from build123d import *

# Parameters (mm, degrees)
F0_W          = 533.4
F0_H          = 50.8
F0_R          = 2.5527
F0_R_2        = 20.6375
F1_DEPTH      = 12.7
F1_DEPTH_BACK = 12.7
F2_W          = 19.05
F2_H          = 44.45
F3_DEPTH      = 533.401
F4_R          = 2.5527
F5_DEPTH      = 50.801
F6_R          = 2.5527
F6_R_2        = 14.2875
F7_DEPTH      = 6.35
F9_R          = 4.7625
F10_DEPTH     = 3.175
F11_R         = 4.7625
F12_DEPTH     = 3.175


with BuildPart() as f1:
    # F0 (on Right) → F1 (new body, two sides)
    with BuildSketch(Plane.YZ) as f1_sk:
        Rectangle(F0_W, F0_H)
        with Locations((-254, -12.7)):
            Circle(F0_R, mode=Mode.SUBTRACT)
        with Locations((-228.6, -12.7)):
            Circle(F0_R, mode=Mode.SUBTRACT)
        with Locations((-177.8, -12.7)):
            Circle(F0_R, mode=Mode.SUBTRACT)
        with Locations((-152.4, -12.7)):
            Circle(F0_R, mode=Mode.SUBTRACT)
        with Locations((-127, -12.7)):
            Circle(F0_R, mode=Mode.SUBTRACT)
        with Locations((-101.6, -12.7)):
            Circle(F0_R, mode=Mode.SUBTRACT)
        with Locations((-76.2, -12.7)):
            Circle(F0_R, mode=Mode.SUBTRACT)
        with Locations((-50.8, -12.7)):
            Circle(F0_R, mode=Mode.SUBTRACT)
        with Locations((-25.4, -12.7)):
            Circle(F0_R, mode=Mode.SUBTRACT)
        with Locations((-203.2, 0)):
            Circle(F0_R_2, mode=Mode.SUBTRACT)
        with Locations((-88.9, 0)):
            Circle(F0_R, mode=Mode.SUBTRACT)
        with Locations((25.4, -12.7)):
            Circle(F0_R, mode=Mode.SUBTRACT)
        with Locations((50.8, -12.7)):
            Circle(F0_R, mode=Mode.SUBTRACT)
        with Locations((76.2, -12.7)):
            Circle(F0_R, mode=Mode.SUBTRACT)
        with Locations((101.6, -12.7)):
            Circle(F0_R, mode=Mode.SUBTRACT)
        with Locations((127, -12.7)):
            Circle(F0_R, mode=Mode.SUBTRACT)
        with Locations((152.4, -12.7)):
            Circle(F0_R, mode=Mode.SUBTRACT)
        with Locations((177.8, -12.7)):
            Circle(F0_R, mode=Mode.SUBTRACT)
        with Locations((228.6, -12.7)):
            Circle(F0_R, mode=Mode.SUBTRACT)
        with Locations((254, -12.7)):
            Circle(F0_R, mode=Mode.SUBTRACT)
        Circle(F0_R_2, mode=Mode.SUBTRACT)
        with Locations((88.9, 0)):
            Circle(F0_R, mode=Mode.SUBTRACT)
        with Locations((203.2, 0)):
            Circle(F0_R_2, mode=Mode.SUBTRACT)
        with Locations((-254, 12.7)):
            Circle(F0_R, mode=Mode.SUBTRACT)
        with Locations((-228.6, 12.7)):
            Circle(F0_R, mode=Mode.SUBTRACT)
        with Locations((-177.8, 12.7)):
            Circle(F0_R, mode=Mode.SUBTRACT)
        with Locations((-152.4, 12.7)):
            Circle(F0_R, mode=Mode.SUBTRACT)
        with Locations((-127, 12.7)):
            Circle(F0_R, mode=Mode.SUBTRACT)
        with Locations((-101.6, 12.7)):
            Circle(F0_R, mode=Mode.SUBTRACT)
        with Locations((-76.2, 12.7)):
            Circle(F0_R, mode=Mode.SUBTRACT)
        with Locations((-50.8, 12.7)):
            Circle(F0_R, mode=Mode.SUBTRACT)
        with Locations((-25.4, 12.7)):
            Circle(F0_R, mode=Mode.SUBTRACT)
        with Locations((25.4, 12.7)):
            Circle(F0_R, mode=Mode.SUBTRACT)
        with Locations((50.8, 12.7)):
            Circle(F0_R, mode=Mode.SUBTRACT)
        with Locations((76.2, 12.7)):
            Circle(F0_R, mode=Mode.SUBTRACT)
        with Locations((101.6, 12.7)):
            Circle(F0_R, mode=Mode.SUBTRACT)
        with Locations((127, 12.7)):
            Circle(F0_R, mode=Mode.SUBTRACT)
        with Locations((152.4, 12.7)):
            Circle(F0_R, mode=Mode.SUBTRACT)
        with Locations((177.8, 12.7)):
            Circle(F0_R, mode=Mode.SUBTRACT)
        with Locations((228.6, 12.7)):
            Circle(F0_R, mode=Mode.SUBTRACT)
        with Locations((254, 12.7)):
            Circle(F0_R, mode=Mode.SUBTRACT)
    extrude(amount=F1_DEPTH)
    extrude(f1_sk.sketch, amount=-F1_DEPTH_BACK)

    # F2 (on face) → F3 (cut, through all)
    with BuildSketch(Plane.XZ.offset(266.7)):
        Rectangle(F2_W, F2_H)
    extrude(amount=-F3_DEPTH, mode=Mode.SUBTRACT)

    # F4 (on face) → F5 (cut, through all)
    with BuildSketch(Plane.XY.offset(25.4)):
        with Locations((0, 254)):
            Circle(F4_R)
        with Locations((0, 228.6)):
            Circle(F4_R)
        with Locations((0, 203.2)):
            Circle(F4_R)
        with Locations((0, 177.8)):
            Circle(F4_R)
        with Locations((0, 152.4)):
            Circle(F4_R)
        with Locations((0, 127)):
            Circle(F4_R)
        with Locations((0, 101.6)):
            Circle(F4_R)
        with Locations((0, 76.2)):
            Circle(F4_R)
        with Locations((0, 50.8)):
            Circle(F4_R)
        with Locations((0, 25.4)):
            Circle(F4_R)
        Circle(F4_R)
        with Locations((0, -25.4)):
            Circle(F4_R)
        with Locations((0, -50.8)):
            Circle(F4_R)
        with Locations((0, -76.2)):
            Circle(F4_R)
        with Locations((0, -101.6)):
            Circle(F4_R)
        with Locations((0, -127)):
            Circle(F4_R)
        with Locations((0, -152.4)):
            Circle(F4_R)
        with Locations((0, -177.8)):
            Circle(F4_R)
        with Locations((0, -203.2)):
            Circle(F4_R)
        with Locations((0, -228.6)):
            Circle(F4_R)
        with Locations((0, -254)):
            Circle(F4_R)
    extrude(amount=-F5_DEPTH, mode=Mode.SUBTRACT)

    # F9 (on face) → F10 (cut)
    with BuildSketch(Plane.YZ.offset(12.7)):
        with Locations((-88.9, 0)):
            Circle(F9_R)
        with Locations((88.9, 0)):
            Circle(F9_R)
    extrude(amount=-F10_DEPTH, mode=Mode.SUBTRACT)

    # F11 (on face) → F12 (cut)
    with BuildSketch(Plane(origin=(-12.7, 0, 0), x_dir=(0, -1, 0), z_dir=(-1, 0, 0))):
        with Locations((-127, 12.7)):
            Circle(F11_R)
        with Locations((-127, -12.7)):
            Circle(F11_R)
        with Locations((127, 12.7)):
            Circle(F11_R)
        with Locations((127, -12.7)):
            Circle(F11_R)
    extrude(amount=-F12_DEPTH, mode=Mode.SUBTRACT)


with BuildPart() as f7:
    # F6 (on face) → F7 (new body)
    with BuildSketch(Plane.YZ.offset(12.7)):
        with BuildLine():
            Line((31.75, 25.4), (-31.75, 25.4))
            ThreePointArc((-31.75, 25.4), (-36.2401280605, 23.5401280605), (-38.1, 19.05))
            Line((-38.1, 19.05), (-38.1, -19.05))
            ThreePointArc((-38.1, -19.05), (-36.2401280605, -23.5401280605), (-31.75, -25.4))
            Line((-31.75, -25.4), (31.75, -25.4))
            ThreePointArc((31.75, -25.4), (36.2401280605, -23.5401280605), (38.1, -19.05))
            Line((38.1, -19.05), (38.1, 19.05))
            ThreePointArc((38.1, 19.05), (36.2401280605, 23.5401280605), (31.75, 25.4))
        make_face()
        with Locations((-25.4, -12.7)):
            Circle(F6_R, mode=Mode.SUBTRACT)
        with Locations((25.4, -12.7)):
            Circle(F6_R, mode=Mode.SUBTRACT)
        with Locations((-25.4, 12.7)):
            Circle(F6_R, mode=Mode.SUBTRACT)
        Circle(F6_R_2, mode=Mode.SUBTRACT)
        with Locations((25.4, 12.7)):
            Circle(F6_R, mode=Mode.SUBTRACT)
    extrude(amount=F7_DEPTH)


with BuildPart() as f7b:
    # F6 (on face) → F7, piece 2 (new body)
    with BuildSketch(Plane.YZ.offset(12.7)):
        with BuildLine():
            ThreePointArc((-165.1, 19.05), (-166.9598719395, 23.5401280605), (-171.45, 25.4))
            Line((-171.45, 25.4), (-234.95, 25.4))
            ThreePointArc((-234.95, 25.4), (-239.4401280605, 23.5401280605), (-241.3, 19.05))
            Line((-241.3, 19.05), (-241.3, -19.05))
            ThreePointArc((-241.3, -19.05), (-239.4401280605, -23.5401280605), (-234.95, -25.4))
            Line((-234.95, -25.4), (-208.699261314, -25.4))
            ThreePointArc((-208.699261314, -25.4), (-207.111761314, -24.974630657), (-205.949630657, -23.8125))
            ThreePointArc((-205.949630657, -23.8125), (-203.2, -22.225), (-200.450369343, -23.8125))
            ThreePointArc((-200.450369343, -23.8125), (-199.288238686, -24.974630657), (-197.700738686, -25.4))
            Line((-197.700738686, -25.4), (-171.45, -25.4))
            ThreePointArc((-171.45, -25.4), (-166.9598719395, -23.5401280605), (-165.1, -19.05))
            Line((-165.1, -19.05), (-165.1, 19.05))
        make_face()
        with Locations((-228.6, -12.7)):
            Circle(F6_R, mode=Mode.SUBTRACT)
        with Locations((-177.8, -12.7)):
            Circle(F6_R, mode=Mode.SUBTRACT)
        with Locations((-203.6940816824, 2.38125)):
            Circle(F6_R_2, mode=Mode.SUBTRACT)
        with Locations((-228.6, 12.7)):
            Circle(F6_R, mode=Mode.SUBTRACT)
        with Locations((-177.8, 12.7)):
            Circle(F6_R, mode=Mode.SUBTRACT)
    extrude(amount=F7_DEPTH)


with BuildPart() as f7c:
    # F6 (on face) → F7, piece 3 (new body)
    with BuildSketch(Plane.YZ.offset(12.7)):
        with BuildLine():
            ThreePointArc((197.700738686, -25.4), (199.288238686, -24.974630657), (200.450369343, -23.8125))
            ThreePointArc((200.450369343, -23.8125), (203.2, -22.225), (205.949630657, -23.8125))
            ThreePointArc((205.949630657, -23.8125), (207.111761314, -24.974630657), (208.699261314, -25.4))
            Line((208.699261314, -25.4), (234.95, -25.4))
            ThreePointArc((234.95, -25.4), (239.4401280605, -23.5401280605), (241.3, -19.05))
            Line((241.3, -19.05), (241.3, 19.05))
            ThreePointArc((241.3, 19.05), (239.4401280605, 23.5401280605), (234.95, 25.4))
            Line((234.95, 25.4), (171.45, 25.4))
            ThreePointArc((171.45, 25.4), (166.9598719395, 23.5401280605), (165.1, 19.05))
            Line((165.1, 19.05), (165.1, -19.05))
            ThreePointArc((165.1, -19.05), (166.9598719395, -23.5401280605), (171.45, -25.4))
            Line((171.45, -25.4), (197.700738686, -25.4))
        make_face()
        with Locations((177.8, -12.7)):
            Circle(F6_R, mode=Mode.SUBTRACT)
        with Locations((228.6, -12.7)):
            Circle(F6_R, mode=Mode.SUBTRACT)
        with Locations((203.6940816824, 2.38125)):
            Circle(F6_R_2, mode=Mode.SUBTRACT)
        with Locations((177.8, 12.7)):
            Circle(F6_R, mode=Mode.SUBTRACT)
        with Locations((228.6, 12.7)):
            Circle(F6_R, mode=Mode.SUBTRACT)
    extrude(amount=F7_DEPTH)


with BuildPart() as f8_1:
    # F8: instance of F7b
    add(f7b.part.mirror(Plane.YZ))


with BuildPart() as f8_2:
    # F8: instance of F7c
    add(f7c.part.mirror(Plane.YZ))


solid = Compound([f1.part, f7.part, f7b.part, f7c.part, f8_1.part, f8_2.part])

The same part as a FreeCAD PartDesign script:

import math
import FreeCAD as App
import Part
import Sketcher
from FreeCAD import Vector
Q = App.Units.Quantity

doc = App.newDocument("Part")
body = doc.addObject("PartDesign::Body", "Body")

sketch1 = doc.addObject("Sketcher::SketchObject", "Sketch")
body.addObject(sketch1)
sketch1.AttachmentSupport = (doc.YZ_Plane, [""])
sketch1.MapMode = "FlatFace"
sketch1.addGeometry([
    Part.LineSegment(Vector(-266.7, 25.4, 0), Vector(-266.7, -25.4, 0)),
    Part.LineSegment(Vector(-266.7, -25.4, 0), Vector(266.7, -25.4, 0)),
    Part.LineSegment(Vector(266.7, -25.4, 0), Vector(266.7, 25.4, 0)),
    Part.LineSegment(Vector(266.7, 25.4, 0), Vector(-266.7, 25.4, 0)),
    Part.Circle(Vector(-254, -12.7, 0), Vector(0, 0, 1), 2.5527),
    Part.Circle(Vector(-228.6, -12.7, 0), Vector(0, 0, 1), 2.5527),
    Part.Circle(Vector(-177.8, -12.7, 0), Vector(0, 0, 1), 2.5527),
    Part.Circle(Vector(-152.4, -12.7, 0), Vector(0, 0, 1), 2.5527),
    Part.Circle(Vector(-127, -12.7, 0), Vector(0, 0, 1), 2.5527),
    Part.Circle(Vector(-101.6, -12.7, 0), Vector(0, 0, 1), 2.5527),
    Part.Circle(Vector(-76.2, -12.7, 0), Vector(0, 0, 1), 2.5527),
    Part.Circle(Vector(-50.8, -12.7, 0), Vector(0, 0, 1), 2.5527),
    Part.Circle(Vector(-25.4, -12.7, 0), Vector(0, 0, 1), 2.5527),
    Part.Circle(Vector(25.4, -12.7, 0), Vector(0, 0, 1), 2.5527),
    Part.Circle(Vector(50.8, -12.7, 0), Vector(0, 0, 1), 2.5527),
    Part.Circle(Vector(76.2, -12.7, 0), Vector(0, 0, 1), 2.5527),
    Part.Circle(Vector(101.6, -12.7, 0), Vector(0, 0, 1), 2.5527),
    Part.Circle(Vector(127, -12.7, 0), Vector(0, 0, 1), 2.5527),
    Part.Circle(Vector(152.4, -12.7, 0), Vector(0, 0, 1), 2.5527),
    Part.Circle(Vector(177.8, -12.7, 0), Vector(0, 0, 1), 2.5527),
    Part.Circle(Vector(228.6, -12.7, 0), Vector(0, 0, 1), 2.5527),
    Part.Circle(Vector(254, -12.7, 0), Vector(0, 0, 1), 2.5527),
    Part.Circle(Vector(-203.2, 0, 0), Vector(0, 0, 1), 20.6375),
    Part.Circle(Vector(-88.9, 0, 0), Vector(0, 0, 1), 2.5527),
    Part.Circle(Vector(-254, 12.7, 0), Vector(0, 0, 1), 2.5527),
    Part.Circle(Vector(-228.6, 12.7, 0), Vector(0, 0, 1), 2.5527),
    Part.Circle(Vector(-177.8, 12.7, 0), Vector(0, 0, 1), 2.5527),
    Part.Circle(Vector(-152.4, 12.7, 0), Vector(0, 0, 1), 2.5527),
    Part.Circle(Vector(-127, 12.7, 0), Vector(0, 0, 1), 2.5527),
    Part.Circle(Vector(-101.6, 12.7, 0), Vector(0, 0, 1), 2.5527),
    Part.Circle(Vector(-76.2, 12.7, 0), Vector(0, 0, 1), 2.5527),
    Part.Circle(Vector(-50.8, 12.7, 0), Vector(0, 0, 1), 2.5527),
    Part.Circle(Vector(-25.4, 12.7, 0), Vector(0, 0, 1), 2.5527),
    Part.Circle(Vector(0, 0, 0), Vector(0, 0, 1), 20.6375),
    Part.Circle(Vector(88.9, 0, 0), Vector(0, 0, 1), 2.5527),
    Part.Circle(Vector(203.2, 0, 0), Vector(0, 0, 1), 20.6375),
    Part.Circle(Vector(25.4, 12.7, 0), Vector(0, 0, 1), 2.5527),
    Part.Circle(Vector(50.8, 12.7, 0), Vector(0, 0, 1), 2.5527),
    Part.Circle(Vector(76.2, 12.7, 0), Vector(0, 0, 1), 2.5527),
    Part.Circle(Vector(101.6, 12.7, 0), Vector(0, 0, 1), 2.5527),
    Part.Circle(Vector(127, 12.7, 0), Vector(0, 0, 1), 2.5527),
    Part.Circle(Vector(152.4, 12.7, 0), Vector(0, 0, 1), 2.5527),
    Part.Circle(Vector(177.8, 12.7, 0), Vector(0, 0, 1), 2.5527),
    Part.Circle(Vector(228.6, 12.7, 0), Vector(0, 0, 1), 2.5527),
    Part.Circle(Vector(254, 12.7, 0), Vector(0, 0, 1), 2.5527),
], False)
sketch1.addConstraint([
    Sketcher.Constraint("Coincident", 0, 2, 1, 1),
    Sketcher.Constraint("Coincident", 1, 2, 2, 1),
    Sketcher.Constraint("Coincident", 2, 2, 3, 1),
    Sketcher.Constraint("Coincident", 3, 2, 0, 1),
    Sketcher.Constraint("Vertical", 0),
    Sketcher.Constraint("Horizontal", 1),
    Sketcher.Constraint("Vertical", 2),
    Sketcher.Constraint("Horizontal", 3),
    Sketcher.Constraint("Coincident", 33, 3, -1, 1),
    Sketcher.Constraint("Equal", 4, 5),
    Sketcher.Constraint("Equal", 5, 6),
    Sketcher.Constraint("Equal", 6, 7),
    Sketcher.Constraint("Equal", 7, 8),
    Sketcher.Constraint("Equal", 8, 9),
    Sketcher.Constraint("Equal", 9, 10),
    Sketcher.Constraint("Equal", 10, 11),
    Sketcher.Constraint("Equal", 11, 12),
    Sketcher.Constraint("Equal", 12, 13),
    Sketcher.Constraint("Equal", 13, 14),
    Sketcher.Constraint("Equal", 14, 15),
    Sketcher.Constraint("Equal", 15, 16),
    Sketcher.Constraint("Equal", 16, 17),
    Sketcher.Constraint("Equal", 17, 18),
    Sketcher.Constraint("Equal", 18, 19),
    Sketcher.Constraint("Equal", 19, 20),
    Sketcher.Constraint("Equal", 20, 21),
    Sketcher.Constraint("Equal", 21, 23),
    Sketcher.Constraint("Equal", 23, 24),
    Sketcher.Constraint("Equal", 24, 25),
    Sketcher.Constraint("Equal", 25, 26),
    Sketcher.Constraint("Equal", 26, 27),
    Sketcher.Constraint("Equal", 27, 28),
    Sketcher.Constraint("Equal", 28, 29),
    Sketcher.Constraint("Equal", 29, 30),
    Sketcher.Constraint("Equal", 30, 31),
    Sketcher.Constraint("Equal", 31, 32),
    Sketcher.Constraint("Equal", 22, 33),
    Sketcher.Constraint("Equal", 32, 34),
    Sketcher.Constraint("Equal", 33, 35),
    Sketcher.Constraint("Equal", 34, 36),
    Sketcher.Constraint("Equal", 36, 37),
    Sketcher.Constraint("Equal", 37, 38),
    Sketcher.Constraint("Equal", 38, 39),
    Sketcher.Constraint("Equal", 39, 40),
    Sketcher.Constraint("Equal", 40, 41),
    Sketcher.Constraint("Equal", 41, 42),
    Sketcher.Constraint("Equal", 42, 43),
    Sketcher.Constraint("Equal", 43, 44),
    Sketcher.Constraint("Symmetric", 21, 3, 24, 3, -1, 1),
    Sketcher.Constraint("Symmetric", 20, 3, 25, 3, -1, 1),
    Sketcher.Constraint("Symmetric", 19, 3, 26, 3, -1, 1),
    Sketcher.Constraint("Symmetric", 18, 3, 27, 3, -1, 1),
    Sketcher.Constraint("Symmetric", 17, 3, 28, 3, -1, 1),
    Sketcher.Constraint("Symmetric", 16, 3, 29, 3, -1, 1),
    Sketcher.Constraint("Symmetric", 15, 3, 30, 3, -1, 1),
    Sketcher.Constraint("Symmetric", 14, 3, 31, 3, -1, 1),
    Sketcher.Constraint("Symmetric", 13, 3, 32, 3, -1, 1),
    Sketcher.Constraint("Symmetric", 23, 3, 34, 3, -1, 1),
    Sketcher.Constraint("Symmetric", 22, 3, 35, 3, -1, 1),
    Sketcher.Constraint("Symmetric", 12, 3, 36, 3, -1, 1),
    Sketcher.Constraint("Symmetric", 11, 3, 37, 3, -1, 1),
    Sketcher.Constraint("Symmetric", 10, 3, 38, 3, -1, 1),
    Sketcher.Constraint("Symmetric", 9, 3, 39, 3, -1, 1),
    Sketcher.Constraint("Symmetric", 8, 3, 40, 3, -1, 1),
    Sketcher.Constraint("Symmetric", 7, 3, 41, 3, -1, 1),
    Sketcher.Constraint("Symmetric", 6, 3, 42, 3, -1, 1),
    Sketcher.Constraint("Symmetric", 5, 3, 43, 3, -1, 1),
    Sketcher.Constraint("Symmetric", 4, 3, 44, 3, -1, 1),
    Sketcher.Constraint("Symmetric", 0, 2, 2, 2, -1, 1),
    Sketcher.Constraint("Symmetric", 12, 3, 13, 3, -2),
    Sketcher.Constraint("Symmetric", 11, 3, 14, 3, -2),
    Sketcher.Constraint("Symmetric", 10, 3, 15, 3, -2),
    Sketcher.Constraint("Symmetric", 9, 3, 16, 3, -2),
    Sketcher.Constraint("Symmetric", 8, 3, 17, 3, -2),
    Sketcher.Constraint("Symmetric", 7, 3, 18, 3, -2),
    Sketcher.Constraint("Symmetric", 6, 3, 19, 3, -2),
    Sketcher.Constraint("Symmetric", 5, 3, 20, 3, -2),
    Sketcher.Constraint("Symmetric", 4, 3, 21, 3, -2),
    Sketcher.Constraint("PointOnObject", 22, 3, -1),
    Sketcher.Constraint("PointOnObject", 23, 3, -1),
    Sketcher.Constraint("Horizontal", 4, 3, 5, 3),
    Sketcher.Constraint("Horizontal", 5, 3, 6, 3),
    Sketcher.Constraint("Horizontal", 6, 3, 7, 3),
    Sketcher.Constraint("Horizontal", 7, 3, 8, 3),
    Sketcher.Constraint("Horizontal", 8, 3, 9, 3),
    Sketcher.Constraint("Horizontal", 9, 3, 10, 3),
    Sketcher.Constraint("Horizontal", 10, 3, 11, 3),
    Sketcher.Constraint("Horizontal", 11, 3, 12, 3),
    Sketcher.Constraint("DistanceX", 1, 1, 1, 2, Q("21 in")),
    Sketcher.Constraint("DistanceY", 0, 2, 0, 1, Q("2 in")),
    Sketcher.Constraint("Diameter", 4, Q("0.201 in")),
    Sketcher.Constraint("Diameter", 22, Q("1.625 in")),
    Sketcher.Constraint("DistanceX", 4, 3, -1, 1, Q("10 in")),
    Sketcher.Constraint("DistanceX", 5, 3, -1, 1, Q("9 in")),
    Sketcher.Constraint("DistanceX", 6, 3, -1, 1, Q("7 in")),
    Sketcher.Constraint("DistanceX", 7, 3, -1, 1, Q("6 in")),
    Sketcher.Constraint("DistanceX", 8, 3, -1, 1, Q("5 in")),
    Sketcher.Constraint("DistanceX", 9, 3, -1, 1, Q("4 in")),
    Sketcher.Constraint("DistanceX", 10, 3, -1, 1, Q("3 in")),
    Sketcher.Constraint("DistanceX", 11, 3, -1, 1, Q("2 in")),
    Sketcher.Constraint("DistanceX", 12, 3, -1, 1, Q("1 in")),
    Sketcher.Constraint("DistanceX", 22, 3, -1, 1, Q("8 in")),
    Sketcher.Constraint("DistanceY", 4, 3, 24, 3, Q("1 in")),
    Sketcher.Constraint("DistanceX", 23, 3, -1, 1, Q("3.5 in")),
])
pad1 = doc.addObject("PartDesign::Pad", "Pad")
body.addObject(pad1)
pad1.Profile = sketch1
pad1.Type = "TwoLengths"
pad1.Length = Q("0.5 in")
pad1.Length2 = Q("0.5 in")

sketch2 = doc.addObject("Sketcher::SketchObject", "Sketch001")
body.addObject(sketch2)
sketch2.AttachmentSupport = (doc.XZ_Plane, [""])
sketch2.MapMode = "FlatFace"
sketch2.AttachmentOffset = App.Placement(Vector(0, 0, 10.5 * 25.4), App.Rotation())
sketch2.addGeometry([
    Part.LineSegment(Vector(-9.525, 22.225, 0), Vector(-9.525, -22.225, 0)),
    Part.LineSegment(Vector(-9.525, -22.225, 0), Vector(9.525, -22.225, 0)),
    Part.LineSegment(Vector(9.525, -22.225, 0), Vector(9.525, 22.225, 0)),
    Part.LineSegment(Vector(9.525, 22.225, 0), Vector(-9.525, 22.225, 0)),
], False)
sketch2.addConstraint([
    Sketcher.Constraint("Coincident", 0, 2, 1, 1),
    Sketcher.Constraint("Coincident", 1, 2, 2, 1),
    Sketcher.Constraint("Coincident", 2, 2, 3, 1),
    Sketcher.Constraint("Coincident", 3, 2, 0, 1),
    Sketcher.Constraint("Vertical", 0),
    Sketcher.Constraint("Horizontal", 1),
    Sketcher.Constraint("Vertical", 2),
    Sketcher.Constraint("Horizontal", 3),
    Sketcher.Constraint("Symmetric", 0, 2, 2, 2, -1, 1),
    Sketcher.Constraint("DistanceX", 1, 1, 1, 2, Q("0.75 in")),
    Sketcher.Constraint("DistanceY", 0, 2, 0, 1, Q("1.75 in")),
])
pocket1 = doc.addObject("PartDesign::Pocket", "Pocket")
body.addObject(pocket1)
pocket1.Profile = sketch2
pocket1.Type = "ThroughAll"

sketch3 = doc.addObject("Sketcher::SketchObject", "Sketch002")
body.addObject(sketch3)
sketch3.AttachmentSupport = (doc.XY_Plane, [""])
sketch3.MapMode = "FlatFace"
sketch3.AttachmentOffset = App.Placement(Vector(0, 0, 1 * 25.4), App.Rotation())
sketch3.addGeometry([
    Part.Circle(Vector(0, 254, 0), Vector(0, 0, 1), 2.5527),
    Part.Circle(Vector(0, 228.6, 0), Vector(0, 0, 1), 2.5527),
    Part.Circle(Vector(0, 203.2, 0), Vector(0, 0, 1), 2.5527),
    Part.Circle(Vector(0, 177.8, 0), Vector(0, 0, 1), 2.5527),
    Part.Circle(Vector(0, 152.4, 0), Vector(0, 0, 1), 2.5527),
    Part.Circle(Vector(0, 127, 0), Vector(0, 0, 1), 2.5527),
    Part.Circle(Vector(0, 101.6, 0), Vector(0, 0, 1), 2.5527),
    Part.Circle(Vector(0, 76.2, 0), Vector(0, 0, 1), 2.5527),
    Part.Circle(Vector(0, 50.8, 0), Vector(0, 0, 1), 2.5527),
    Part.Circle(Vector(0, 25.4, 0), Vector(0, 0, 1), 2.5527),
    Part.Circle(Vector(0, 0, 0), Vector(0, 0, 1), 2.5527),
    Part.Circle(Vector(0, -25.4, 0), Vector(0, 0, 1), 2.5527),
    Part.Circle(Vector(0, -50.8, 0), Vector(0, 0, 1), 2.5527),
    Part.Circle(Vector(0, -76.2, 0), Vector(0, 0, 1), 2.5527),
    Part.Circle(Vector(0, -101.6, 0), Vector(0, 0, 1), 2.5527),
    Part.Circle(Vector(0, -127, 0), Vector(0, 0, 1), 2.5527),
    Part.Circle(Vector(0, -152.4, 0), Vector(0, 0, 1), 2.5527),
    Part.Circle(Vector(0, -177.8, 0), Vector(0, 0, 1), 2.5527),
    Part.Circle(Vector(0, -203.2, 0), Vector(0, 0, 1), 2.5527),
    Part.Circle(Vector(0, -228.6, 0), Vector(0, 0, 1), 2.5527),
    Part.Circle(Vector(0, -254, 0), Vector(0, 0, 1), 2.5527),
], False)
sketch3.addConstraint([
    Sketcher.Constraint("Coincident", 10, 3, -1, 1),
    Sketcher.Constraint("Equal", 0, 1),
    Sketcher.Constraint("Equal", 1, 2),
    Sketcher.Constraint("Equal", 2, 3),
    Sketcher.Constraint("Equal", 3, 4),
    Sketcher.Constraint("Equal", 4, 5),
    Sketcher.Constraint("Equal", 5, 6),
    Sketcher.Constraint("Equal", 6, 7),
    Sketcher.Constraint("Equal", 7, 8),
    Sketcher.Constraint("Equal", 8, 9),
    Sketcher.Constraint("Equal", 9, 10),
    Sketcher.Constraint("Equal", 10, 11),
    Sketcher.Constraint("Equal", 11, 12),
    Sketcher.Constraint("Equal", 12, 13),
    Sketcher.Constraint("Equal", 13, 14),
    Sketcher.Constraint("Equal", 14, 15),
    Sketcher.Constraint("Equal", 15, 16),
    Sketcher.Constraint("Equal", 16, 17),
    Sketcher.Constraint("Equal", 17, 18),
    Sketcher.Constraint("Equal", 18, 19),
    Sketcher.Constraint("Equal", 19, 20),
    Sketcher.Constraint("Symmetric", 9, 3, 11, 3, -1, 1),
    Sketcher.Constraint("Symmetric", 8, 3, 12, 3, -1, 1),
    Sketcher.Constraint("Symmetric", 7, 3, 13, 3, -1, 1),
    Sketcher.Constraint("Symmetric", 6, 3, 14, 3, -1, 1),
    Sketcher.Constraint("Symmetric", 5, 3, 15, 3, -1, 1),
    Sketcher.Constraint("Symmetric", 4, 3, 16, 3, -1, 1),
    Sketcher.Constraint("Symmetric", 3, 3, 17, 3, -1, 1),
    Sketcher.Constraint("Symmetric", 2, 3, 18, 3, -1, 1),
    Sketcher.Constraint("Symmetric", 1, 3, 19, 3, -1, 1),
    Sketcher.Constraint("Symmetric", 0, 3, 20, 3, -1, 1),
    Sketcher.Constraint("PointOnObject", 0, 3, -2),
    Sketcher.Constraint("PointOnObject", 1, 3, -2),
    Sketcher.Constraint("PointOnObject", 2, 3, -2),
    Sketcher.Constraint("PointOnObject", 3, 3, -2),
    Sketcher.Constraint("PointOnObject", 4, 3, -2),
    Sketcher.Constraint("PointOnObject", 5, 3, -2),
    Sketcher.Constraint("PointOnObject", 6, 3, -2),
    Sketcher.Constraint("PointOnObject", 7, 3, -2),
    Sketcher.Constraint("PointOnObject", 8, 3, -2),
    Sketcher.Constraint("PointOnObject", 9, 3, -2),
    Sketcher.Constraint("Diameter", 0, Q("0.201 in")),
    Sketcher.Constraint("DistanceY", -1, 1, 0, 3, Q("10 in")),
    Sketcher.Constraint("DistanceY", -1, 1, 1, 3, Q("9 in")),
    Sketcher.Constraint("DistanceY", -1, 1, 2, 3, Q("8 in")),
    Sketcher.Constraint("DistanceY", -1, 1, 3, 3, Q("7 in")),
    Sketcher.Constraint("DistanceY", -1, 1, 4, 3, Q("6 in")),
    Sketcher.Constraint("DistanceY", -1, 1, 5, 3, Q("5 in")),
    Sketcher.Constraint("DistanceY", -1, 1, 6, 3, Q("4 in")),
    Sketcher.Constraint("DistanceY", -1, 1, 7, 3, Q("3 in")),
    Sketcher.Constraint("DistanceY", -1, 1, 8, 3, Q("2 in")),
    Sketcher.Constraint("DistanceY", -1, 1, 9, 3, Q("1 in")),
])
pocket2 = doc.addObject("PartDesign::Pocket", "Pocket001")
body.addObject(pocket2)
pocket2.Profile = sketch3
pocket2.Type = "ThroughAll"

sketch4 = doc.addObject("Sketcher::SketchObject", "Sketch003")
body.addObject(sketch4)
sketch4.AttachmentSupport = (doc.YZ_Plane, [""])
sketch4.MapMode = "FlatFace"
sketch4.AttachmentOffset = App.Placement(Vector(0, 0, 0.5 * 25.4), App.Rotation())
sketch4.addGeometry([
    Part.Circle(Vector(-88.9, 0, 0), Vector(0, 0, 1), 4.7625),
    Part.Circle(Vector(88.9, 0, 0), Vector(0, 0, 1), 4.7625),
], False)
sketch4.addConstraint([
    Sketcher.Constraint("Equal", 0, 1),
    Sketcher.Constraint("Symmetric", 0, 3, 1, 3, -1, 1),
    Sketcher.Constraint("PointOnObject", 0, 3, -1),
    Sketcher.Constraint("Diameter", 0, Q("0.375 in")),
    Sketcher.Constraint("DistanceX", 0, 3, 1, 3, Q("7 in")),
])
pocket3 = doc.addObject("PartDesign::Pocket", "Pocket002")
body.addObject(pocket3)
pocket3.Profile = sketch4
pocket3.Length = Q("0.125 in")

sketch5 = doc.addObject("Sketcher::SketchObject", "Sketch004")
body.addObject(sketch5)
sketch5.AttachmentSupport = (doc.YZ_Plane, [""])
sketch5.MapMode = "FlatFace"
sketch5.AttachmentOffset = App.Placement(Vector(0, 0, -0.5 * 25.4), App.Rotation())
sketch5.addGeometry([
    Part.Circle(Vector(127, 12.7, 0), Vector(0, 0, 1), 4.7625),
    Part.Circle(Vector(127, -12.7, 0), Vector(0, 0, 1), 4.7625),
    Part.Circle(Vector(-127, 12.7, 0), Vector(0, 0, 1), 4.7625),
    Part.Circle(Vector(-127, -12.7, 0), Vector(0, 0, 1), 4.7625),
], False)
sketch5.addConstraint([
    Sketcher.Constraint("Equal", 0, 1),
    Sketcher.Constraint("Equal", 1, 2),
    Sketcher.Constraint("Equal", 2, 3),
    Sketcher.Constraint("Symmetric", 1, 3, 2, 3, -1, 1),
    Sketcher.Constraint("Symmetric", 0, 3, 3, 3, -1, 1),
    Sketcher.Constraint("Symmetric", 0, 3, 2, 3, -2),
    Sketcher.Constraint("Diameter", 0, Q("0.375 in")),
    Sketcher.Constraint("DistanceX", -1, 1, 0, 3, Q("5 in")),
    Sketcher.Constraint("DistanceY", 1, 3, 0, 3, Q("1 in")),
])
pocket4 = doc.addObject("PartDesign::Pocket", "Pocket003")
body.addObject(pocket4)
pocket4.Profile = sketch5
pocket4.Length = Q("0.125 in")
pocket4.Reversed = True
body2 = doc.addObject("PartDesign::Body", "Body001")

sketch6 = doc.addObject("Sketcher::SketchObject", "Sketch005")
body2.addObject(sketch6)
sketch6.AttachmentSupport = (doc.getObject("YZ_Plane001"), [""])
sketch6.MapMode = "FlatFace"
sketch6.AttachmentOffset = App.Placement(Vector(0, 0, 0.5 * 25.4), App.Rotation())
sketch6.addGeometry([
    Part.LineSegment(Vector(31.75, 25.4, 0), Vector(-31.75, 25.4, 0)),
    Part.ArcOfCircle(Part.Circle(Vector(-31.75, 19.05, 0), Vector(0, 0, 1), 6.35), math.radians(90), math.radians(180)),
    Part.LineSegment(Vector(-38.1, 19.05, 0), Vector(-38.1, -19.05, 0)),
    Part.ArcOfCircle(Part.Circle(Vector(-31.75, -19.05, 0), Vector(0, 0, 1), 6.35), math.radians(180), math.radians(270)),
    Part.LineSegment(Vector(-31.75, -25.4, 0), Vector(31.75, -25.4, 0)),
    Part.ArcOfCircle(Part.Circle(Vector(31.75, -19.05, 0), Vector(0, 0, 1), 6.35), math.radians(-90), math.radians(0)),
    Part.LineSegment(Vector(38.1, -19.05, 0), Vector(38.1, 19.05, 0)),
    Part.ArcOfCircle(Part.Circle(Vector(31.75, 19.05, 0), Vector(0, 0, 1), 6.35), math.radians(0), math.radians(90)),
    Part.Circle(Vector(-25.4, -12.7, 0), Vector(0, 0, 1), 2.5527),
    Part.Circle(Vector(25.4, -12.7, 0), Vector(0, 0, 1), 2.5527),
    Part.Circle(Vector(-25.4, 12.7, 0), Vector(0, 0, 1), 2.5527),
    Part.Circle(Vector(0, 0, 0), Vector(0, 0, 1), 14.2875),
    Part.Circle(Vector(25.4, 12.7, 0), Vector(0, 0, 1), 2.5527),
], False)
sketch6.addConstraint([
    Sketcher.Constraint("Tangent", 0, 2, 1, 1),
    Sketcher.Constraint("Tangent", 1, 2, 2, 1),
    Sketcher.Constraint("Tangent", 2, 2, 3, 1),
    Sketcher.Constraint("Tangent", 3, 2, 4, 1),
    Sketcher.Constraint("Tangent", 4, 2, 5, 1),
    Sketcher.Constraint("Tangent", 5, 2, 6, 1),
    Sketcher.Constraint("Tangent", 6, 2, 7, 1),
    Sketcher.Constraint("Tangent", 7, 2, 0, 1),
    Sketcher.Constraint("Horizontal", 0),
    Sketcher.Constraint("Vertical", 2),
    Sketcher.Constraint("Horizontal", 4),
    Sketcher.Constraint("Vertical", 6),
    Sketcher.Constraint("Coincident", 11, 3, -1, 1),
    Sketcher.Constraint("Equal", 1, 3),
    Sketcher.Constraint("Equal", 3, 5),
    Sketcher.Constraint("Equal", 5, 7),
    Sketcher.Constraint("Equal", 8, 9),
    Sketcher.Constraint("Equal", 9, 10),
    Sketcher.Constraint("Equal", 10, 12),
    Sketcher.Constraint("Symmetric", 1, 3, 5, 3, -1, 1),
    Sketcher.Constraint("Symmetric", 9, 3, 10, 3, -1, 1),
    Sketcher.Constraint("Symmetric", 8, 3, 12, 3, -1, 1),
    Sketcher.Constraint("Symmetric", 8, 3, 9, 3, -2),
    Sketcher.Constraint("Radius", 1, Q("0.25 in")),
    Sketcher.Constraint("Diameter", 8, Q("0.201 in")),
    Sketcher.Constraint("Diameter", 11, Q("1.125 in")),
    Sketcher.Constraint("DistanceX", 0, 2, 0, 1, Q("2.5 in")),
    Sketcher.Constraint("DistanceY", 2, 2, 2, 1, Q("1.5 in")),
    Sketcher.Constraint("DistanceX", 8, 3, -1, 1, Q("1 in")),
    Sketcher.Constraint("DistanceY", 8, 3, 10, 3, Q("1 in")),
])
pad2 = doc.addObject("PartDesign::Pad", "Pad001")
body2.addObject(pad2)
pad2.Profile = sketch6
pad2.Length = Q("0.25 in")
body3 = doc.addObject("PartDesign::Body", "Body002")

sketch7 = doc.addObject("Sketcher::SketchObject", "Sketch006")
body3.addObject(sketch7)
sketch7.AttachmentSupport = (doc.getObject("YZ_Plane002"), [""])
sketch7.MapMode = "FlatFace"
sketch7.AttachmentOffset = App.Placement(Vector(0, 0, 0.5 * 25.4), App.Rotation())
sketch7.addGeometry([
    Part.ArcOfCircle(Part.Circle(Vector(-171.45, 19.05, 0), Vector(0, 0, 1), 6.35), math.radians(0), math.radians(90)),
    Part.LineSegment(Vector(-171.45, 25.4, 0), Vector(-234.95, 25.4, 0)),
    Part.ArcOfCircle(Part.Circle(Vector(-234.95, 19.05, 0), Vector(0, 0, 1), 6.35), math.radians(90), math.radians(180)),
    Part.LineSegment(Vector(-241.3, 19.05, 0), Vector(-241.3, -19.05, 0)),
    Part.ArcOfCircle(Part.Circle(Vector(-234.95, -19.05, 0), Vector(0, 0, 1), 6.35), math.radians(180), math.radians(270)),
    Part.LineSegment(Vector(-234.95, -25.4, 0), Vector(-208.699261, -25.4, 0)),
    Part.ArcOfCircle(Part.Circle(Vector(-208.699261, -22.225, 0), Vector(0, 0, 1), 3.175), math.radians(-90), math.radians(-30)),
    Part.ArcOfCircle(Part.Circle(Vector(-203.2, -25.4, 0), Vector(0, 0, 1), 3.175), math.radians(30), math.radians(150)),
    Part.ArcOfCircle(Part.Circle(Vector(-197.700739, -22.225, 0), Vector(0, 0, 1), 3.175), math.radians(-150), math.radians(-90)),
    Part.LineSegment(Vector(-197.700739, -25.4, 0), Vector(-171.45, -25.4, 0)),
    Part.ArcOfCircle(Part.Circle(Vector(-171.45, -19.05, 0), Vector(0, 0, 1), 6.35), math.radians(-90), math.radians(0)),
    Part.LineSegment(Vector(-165.1, -19.05, 0), Vector(-165.1, 19.05, 0)),
    Part.Circle(Vector(-228.6, -12.7, 0), Vector(0, 0, 1), 2.5527),
    Part.Circle(Vector(-177.8, -12.7, 0), Vector(0, 0, 1), 2.5527),
    Part.Circle(Vector(-203.694082, 2.38125, 0), Vector(0, 0, 1), 14.2875),
    Part.Circle(Vector(-228.6, 12.7, 0), Vector(0, 0, 1), 2.5527),
    Part.Circle(Vector(-177.8, 12.7, 0), Vector(0, 0, 1), 2.5527),
], False)
sketch7.addConstraint([
    Sketcher.Constraint("Tangent", 0, 2, 1, 1),
    Sketcher.Constraint("Tangent", 1, 2, 2, 1),
    Sketcher.Constraint("Tangent", 2, 2, 3, 1),
    Sketcher.Constraint("Tangent", 3, 2, 4, 1),
    Sketcher.Constraint("Tangent", 4, 2, 5, 1),
    Sketcher.Constraint("Tangent", 5, 2, 6, 1),
    Sketcher.Constraint("Tangent", 6, 2, 7, 2),
    Sketcher.Constraint("Tangent", 7, 1, 8, 1),
    Sketcher.Constraint("Tangent", 8, 2, 9, 1),
    Sketcher.Constraint("Tangent", 9, 2, 10, 1),
    Sketcher.Constraint("Tangent", 10, 2, 11, 1),
    Sketcher.Constraint("Tangent", 11, 2, 0, 1),
    Sketcher.Constraint("Horizontal", 1),
    Sketcher.Constraint("Vertical", 3),
    Sketcher.Constraint("Horizontal", 5),
    Sketcher.Constraint("Horizontal", 9),
    Sketcher.Constraint("Vertical", 11),
    Sketcher.Constraint("Equal", 0, 2),
    Sketcher.Constraint("Equal", 2, 4),
    Sketcher.Constraint("Equal", 6, 7),
    Sketcher.Constraint("Equal", 7, 8),
    Sketcher.Constraint("Equal", 4, 10),
    Sketcher.Constraint("Equal", 12, 13),
    Sketcher.Constraint("Equal", 13, 15),
    Sketcher.Constraint("Equal", 15, 16),
    Sketcher.Constraint("Symmetric", 12, 3, 15, 3, -1),
    Sketcher.Constraint("Symmetric", 13, 3, 16, 3, -1),
    Sketcher.Constraint("Horizontal", 6, 3, 8, 3),
    Sketcher.Constraint("Horizontal", 12, 3, 13, 3),
    Sketcher.Constraint("Horizontal", 7, 3, 4, 2),
    Sketcher.Constraint("Equal", 5, 9),
    Sketcher.Constraint("Radius", 0, Q("0.25 in")),
    Sketcher.Constraint("Diameter", 12, Q("0.201 in")),
    Sketcher.Constraint("Diameter", 14, Q("1.125 in")),
    Sketcher.Constraint("DistanceX", 1, 2, 1, 1, Q("2.5 in")),
    Sketcher.Constraint("DistanceY", 3, 2, 3, 1, Q("1.5 in")),
    Sketcher.Constraint("DistanceX", 7, 3, -1, 1, Q("8 in")),
    Sketcher.Constraint("DistanceY", 7, 3, -1, 1, Q("1 in")),
    Sketcher.Constraint("DistanceX", 12, 3, -1, 1, Q("9 in")),
    Sketcher.Constraint("DistanceX", 13, 3, -1, 1, Q("7 in")),
    Sketcher.Constraint("Radius", 6, Q("0.125 in")),
    Sketcher.Constraint("DistanceY", 12, 3, 15, 3, Q("1 in")),
    Sketcher.Constraint("DistanceY", -1, 1, 14, 3, Q("0.09375 in")),
    Sketcher.Constraint("DistanceX", 14, 3, -1, 1, 203.694082),
])
pad3 = doc.addObject("PartDesign::Pad", "Pad002")
body3.addObject(pad3)
pad3.Profile = sketch7
pad3.Length = Q("0.25 in")
body4 = doc.addObject("PartDesign::Body", "Body003")

sketch8 = doc.addObject("Sketcher::SketchObject", "Sketch007")
body4.addObject(sketch8)
sketch8.AttachmentSupport = (doc.getObject("YZ_Plane003"), [""])
sketch8.MapMode = "FlatFace"
sketch8.AttachmentOffset = App.Placement(Vector(0, 0, 0.5 * 25.4), App.Rotation())
sketch8.addGeometry([
    Part.ArcOfCircle(Part.Circle(Vector(197.700739, -22.225, 0), Vector(0, 0, 1), 3.175), math.radians(-90), math.radians(-30)),
    Part.ArcOfCircle(Part.Circle(Vector(203.2, -25.4, 0), Vector(0, 0, 1), 3.175), math.radians(30), math.radians(150)),
    Part.ArcOfCircle(Part.Circle(Vector(208.699261, -22.225, 0), Vector(0, 0, 1), 3.175), math.radians(-150), math.radians(-90)),
    Part.LineSegment(Vector(208.699261, -25.4, 0), Vector(234.95, -25.4, 0)),
    Part.ArcOfCircle(Part.Circle(Vector(234.95, -19.05, 0), Vector(0, 0, 1), 6.35), math.radians(-90), math.radians(0)),
    Part.LineSegment(Vector(241.3, -19.05, 0), Vector(241.3, 19.05, 0)),
    Part.ArcOfCircle(Part.Circle(Vector(234.95, 19.05, 0), Vector(0, 0, 1), 6.35), math.radians(0), math.radians(90)),
    Part.LineSegment(Vector(234.95, 25.4, 0), Vector(171.45, 25.4, 0)),
    Part.ArcOfCircle(Part.Circle(Vector(171.45, 19.05, 0), Vector(0, 0, 1), 6.35), math.radians(90), math.radians(180)),
    Part.LineSegment(Vector(165.1, 19.05, 0), Vector(165.1, -19.05, 0)),
    Part.ArcOfCircle(Part.Circle(Vector(171.45, -19.05, 0), Vector(0, 0, 1), 6.35), math.radians(180), math.radians(270)),
    Part.LineSegment(Vector(171.45, -25.4, 0), Vector(197.700739, -25.4, 0)),
    Part.Circle(Vector(177.8, -12.7, 0), Vector(0, 0, 1), 2.5527),
    Part.Circle(Vector(228.6, -12.7, 0), Vector(0, 0, 1), 2.5527),
    Part.Circle(Vector(177.8, 12.7, 0), Vector(0, 0, 1), 2.5527),
    Part.Circle(Vector(203.694082, 2.38125, 0), Vector(0, 0, 1), 14.2875),
    Part.Circle(Vector(228.6, 12.7, 0), Vector(0, 0, 1), 2.5527),
], False)
sketch8.addConstraint([
    Sketcher.Constraint("Tangent", 0, 2, 1, 2),
    Sketcher.Constraint("Tangent", 1, 1, 2, 1),
    Sketcher.Constraint("Tangent", 2, 2, 3, 1),
    Sketcher.Constraint("Tangent", 3, 2, 4, 1),
    Sketcher.Constraint("Tangent", 4, 2, 5, 1),
    Sketcher.Constraint("Tangent", 5, 2, 6, 1),
    Sketcher.Constraint("Tangent", 6, 2, 7, 1),
    Sketcher.Constraint("Tangent", 7, 2, 8, 1),
    Sketcher.Constraint("Tangent", 8, 2, 9, 1),
    Sketcher.Constraint("Tangent", 9, 2, 10, 1),
    Sketcher.Constraint("Tangent", 10, 2, 11, 1),
    Sketcher.Constraint("Tangent", 11, 2, 0, 1),
    Sketcher.Constraint("Horizontal", 3),
    Sketcher.Constraint("Vertical", 5),
    Sketcher.Constraint("Horizontal", 7),
    Sketcher.Constraint("Vertical", 9),
    Sketcher.Constraint("Horizontal", 11),
    Sketcher.Constraint("Equal", 0, 1),
    Sketcher.Constraint("Equal", 1, 2),
    Sketcher.Constraint("Equal", 4, 6),
    Sketcher.Constraint("Equal", 6, 8),
    Sketcher.Constraint("Equal", 8, 10),
    Sketcher.Constraint("Equal", 12, 13),
    Sketcher.Constraint("Equal", 13, 14),
    Sketcher.Constraint("Equal", 14, 16),
    Sketcher.Constraint("Symmetric", 12, 3, 14, 3, -1),
    Sketcher.Constraint("Symmetric", 13, 3, 16, 3, -1),
    Sketcher.Constraint("Horizontal", 0, 3, 2, 3),
    Sketcher.Constraint("Horizontal", 12, 3, 13, 3),
    Sketcher.Constraint("Horizontal", 1, 3, 2, 2),
    Sketcher.Constraint("Equal", 3, 11),
    Sketcher.Constraint("Radius", 4, Q("0.25 in")),
    Sketcher.Constraint("Diameter", 12, Q("0.201 in")),
    Sketcher.Constraint("Diameter", 15, Q("1.125 in")),
    Sketcher.Constraint("DistanceX", 7, 2, 7, 1, Q("2.5 in")),
    Sketcher.Constraint("DistanceY", 5, 1, 5, 2, Q("1.5 in")),
    Sketcher.Constraint("DistanceX", -1, 1, 1, 3, Q("8 in")),
    Sketcher.Constraint("DistanceY", 1, 3, -1, 1, Q("1 in")),
    Sketcher.Constraint("DistanceX", -1, 1, 12, 3, Q("7 in")),
    Sketcher.Constraint("DistanceX", -1, 1, 13, 3, Q("9 in")),
    Sketcher.Constraint("Radius", 0, Q("0.125 in")),
    Sketcher.Constraint("DistanceY", 12, 3, 14, 3, Q("1 in")),
    Sketcher.Constraint("DistanceY", -1, 1, 15, 3, Q("0.09375 in")),
    Sketcher.Constraint("DistanceX", -1, 1, 15, 3, 203.694082),
])
pad4 = doc.addObject("PartDesign::Pad", "Pad003")
body4.addObject(pad4)
pad4.Profile = sketch8
pad4.Length = Q("0.25 in")
body5 = doc.addObject("PartDesign::Body", "Body004")
doc.recompute()

mirroring = doc.addObject("Part::Mirroring", "Mirroring")
mirroring.Source = body3
mirroring.Base = Vector(0, 0, 0)
mirroring.Normal = Vector(1, 0, 0)
body5.BaseFeature = mirroring
doc.recompute()
body6 = doc.addObject("PartDesign::Body", "Body005")
doc.recompute()

mirroring2 = doc.addObject("Part::Mirroring", "Mirroring001")
mirroring2.Source = body4
mirroring2.Base = Vector(0, 0, 0)
mirroring2.Normal = Vector(1, 0, 0)
body6.BaseFeature = mirroring2
doc.recompute()
mirroring.Visibility = False
mirroring2.Visibility = False

doc.recompute()
